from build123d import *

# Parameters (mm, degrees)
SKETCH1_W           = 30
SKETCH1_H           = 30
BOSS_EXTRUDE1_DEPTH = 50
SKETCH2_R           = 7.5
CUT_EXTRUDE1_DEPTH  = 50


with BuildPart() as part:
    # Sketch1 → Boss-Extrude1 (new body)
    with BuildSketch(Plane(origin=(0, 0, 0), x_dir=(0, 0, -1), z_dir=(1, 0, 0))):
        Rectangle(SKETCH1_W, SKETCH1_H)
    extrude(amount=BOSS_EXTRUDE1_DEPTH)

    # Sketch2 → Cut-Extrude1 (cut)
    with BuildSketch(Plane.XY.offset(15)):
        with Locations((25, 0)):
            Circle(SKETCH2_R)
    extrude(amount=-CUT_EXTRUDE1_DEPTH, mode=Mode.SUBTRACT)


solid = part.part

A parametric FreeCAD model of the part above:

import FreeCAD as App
import Part
import Sketcher
from FreeCAD import Vector


def add_polygon(sketch, points):
    """Adds a closed chain of lines whose ends are joined by coincident constraints."""
    first, n = sketch.GeometryCount, len(points)
    for a, b in zip(points, points[1:] + points[:1]):
        sketch.addGeometry(Part.LineSegment(App.Vector(*a, 0), App.Vector(*b, 0)), False)
    for i in range(n):
        sketch.addConstraint(Sketcher.Constraint("Coincident", first + i, 2, first + (i + 1) % n, 1))

doc = App.newDocument("Part")
body = doc.addObject("PartDesign::Body", "Body")

sketch1 = body.newObject("Sketcher::SketchObject", "Sketch")
sketch1.AttachmentSupport = (doc.getObject("YZ_Plane"), [""])
sketch1.MapMode = "FlatFace"
add_polygon(sketch1, [(15, 15), (-15, 15), (-15, -15), (15, -15)])
sketch1.addConstraint([
    Sketcher.Constraint("Horizontal", 0),
    Sketcher.Constraint("Vertical", 1),
    Sketcher.Constraint("Horizontal", 2),
    Sketcher.Constraint("Vertical", 3),
    Sketcher.Constraint("Symmetric", 0, 2, 2, 2, -1, 1),
    Sketcher.Constraint("Equal", 2, 1),
    Sketcher.Constraint("DistanceX", 0, 2, 0, 1, 30.0),
])
pad1 = body.newObject("PartDesign::Pad", "Pad")
pad1.Profile = sketch1
pad1.Length = 50

sketch2 = body.newObject("Sketcher::SketchObject", "Sketch001")
sketch2.AttachmentSupport = (doc.getObject("XY_Plane"), [""])
sketch2.MapMode = "FlatFace"
sketch2.AttachmentOffset = App.Placement(Vector(0, 0, 15), App.Rotation())
sketch2.addGeometry(Part.Circle(Vector(25, 0, 0), Vector(0, 0, 1), 7.5), False)
sketch2.addConstraint([
    Sketcher.Constraint("PointOnObject", 0, 3, -1),
    Sketcher.Constraint("Diameter", 0, 15.0),
    Sketcher.Constraint("DistanceX", -1, 1, 0, 3, 25.0),
])
pocket1 = body.newObject("PartDesign::Pocket", "Pocket")
pocket1.Profile = sketch2
pocket1.Length = 50

doc.recompute()
